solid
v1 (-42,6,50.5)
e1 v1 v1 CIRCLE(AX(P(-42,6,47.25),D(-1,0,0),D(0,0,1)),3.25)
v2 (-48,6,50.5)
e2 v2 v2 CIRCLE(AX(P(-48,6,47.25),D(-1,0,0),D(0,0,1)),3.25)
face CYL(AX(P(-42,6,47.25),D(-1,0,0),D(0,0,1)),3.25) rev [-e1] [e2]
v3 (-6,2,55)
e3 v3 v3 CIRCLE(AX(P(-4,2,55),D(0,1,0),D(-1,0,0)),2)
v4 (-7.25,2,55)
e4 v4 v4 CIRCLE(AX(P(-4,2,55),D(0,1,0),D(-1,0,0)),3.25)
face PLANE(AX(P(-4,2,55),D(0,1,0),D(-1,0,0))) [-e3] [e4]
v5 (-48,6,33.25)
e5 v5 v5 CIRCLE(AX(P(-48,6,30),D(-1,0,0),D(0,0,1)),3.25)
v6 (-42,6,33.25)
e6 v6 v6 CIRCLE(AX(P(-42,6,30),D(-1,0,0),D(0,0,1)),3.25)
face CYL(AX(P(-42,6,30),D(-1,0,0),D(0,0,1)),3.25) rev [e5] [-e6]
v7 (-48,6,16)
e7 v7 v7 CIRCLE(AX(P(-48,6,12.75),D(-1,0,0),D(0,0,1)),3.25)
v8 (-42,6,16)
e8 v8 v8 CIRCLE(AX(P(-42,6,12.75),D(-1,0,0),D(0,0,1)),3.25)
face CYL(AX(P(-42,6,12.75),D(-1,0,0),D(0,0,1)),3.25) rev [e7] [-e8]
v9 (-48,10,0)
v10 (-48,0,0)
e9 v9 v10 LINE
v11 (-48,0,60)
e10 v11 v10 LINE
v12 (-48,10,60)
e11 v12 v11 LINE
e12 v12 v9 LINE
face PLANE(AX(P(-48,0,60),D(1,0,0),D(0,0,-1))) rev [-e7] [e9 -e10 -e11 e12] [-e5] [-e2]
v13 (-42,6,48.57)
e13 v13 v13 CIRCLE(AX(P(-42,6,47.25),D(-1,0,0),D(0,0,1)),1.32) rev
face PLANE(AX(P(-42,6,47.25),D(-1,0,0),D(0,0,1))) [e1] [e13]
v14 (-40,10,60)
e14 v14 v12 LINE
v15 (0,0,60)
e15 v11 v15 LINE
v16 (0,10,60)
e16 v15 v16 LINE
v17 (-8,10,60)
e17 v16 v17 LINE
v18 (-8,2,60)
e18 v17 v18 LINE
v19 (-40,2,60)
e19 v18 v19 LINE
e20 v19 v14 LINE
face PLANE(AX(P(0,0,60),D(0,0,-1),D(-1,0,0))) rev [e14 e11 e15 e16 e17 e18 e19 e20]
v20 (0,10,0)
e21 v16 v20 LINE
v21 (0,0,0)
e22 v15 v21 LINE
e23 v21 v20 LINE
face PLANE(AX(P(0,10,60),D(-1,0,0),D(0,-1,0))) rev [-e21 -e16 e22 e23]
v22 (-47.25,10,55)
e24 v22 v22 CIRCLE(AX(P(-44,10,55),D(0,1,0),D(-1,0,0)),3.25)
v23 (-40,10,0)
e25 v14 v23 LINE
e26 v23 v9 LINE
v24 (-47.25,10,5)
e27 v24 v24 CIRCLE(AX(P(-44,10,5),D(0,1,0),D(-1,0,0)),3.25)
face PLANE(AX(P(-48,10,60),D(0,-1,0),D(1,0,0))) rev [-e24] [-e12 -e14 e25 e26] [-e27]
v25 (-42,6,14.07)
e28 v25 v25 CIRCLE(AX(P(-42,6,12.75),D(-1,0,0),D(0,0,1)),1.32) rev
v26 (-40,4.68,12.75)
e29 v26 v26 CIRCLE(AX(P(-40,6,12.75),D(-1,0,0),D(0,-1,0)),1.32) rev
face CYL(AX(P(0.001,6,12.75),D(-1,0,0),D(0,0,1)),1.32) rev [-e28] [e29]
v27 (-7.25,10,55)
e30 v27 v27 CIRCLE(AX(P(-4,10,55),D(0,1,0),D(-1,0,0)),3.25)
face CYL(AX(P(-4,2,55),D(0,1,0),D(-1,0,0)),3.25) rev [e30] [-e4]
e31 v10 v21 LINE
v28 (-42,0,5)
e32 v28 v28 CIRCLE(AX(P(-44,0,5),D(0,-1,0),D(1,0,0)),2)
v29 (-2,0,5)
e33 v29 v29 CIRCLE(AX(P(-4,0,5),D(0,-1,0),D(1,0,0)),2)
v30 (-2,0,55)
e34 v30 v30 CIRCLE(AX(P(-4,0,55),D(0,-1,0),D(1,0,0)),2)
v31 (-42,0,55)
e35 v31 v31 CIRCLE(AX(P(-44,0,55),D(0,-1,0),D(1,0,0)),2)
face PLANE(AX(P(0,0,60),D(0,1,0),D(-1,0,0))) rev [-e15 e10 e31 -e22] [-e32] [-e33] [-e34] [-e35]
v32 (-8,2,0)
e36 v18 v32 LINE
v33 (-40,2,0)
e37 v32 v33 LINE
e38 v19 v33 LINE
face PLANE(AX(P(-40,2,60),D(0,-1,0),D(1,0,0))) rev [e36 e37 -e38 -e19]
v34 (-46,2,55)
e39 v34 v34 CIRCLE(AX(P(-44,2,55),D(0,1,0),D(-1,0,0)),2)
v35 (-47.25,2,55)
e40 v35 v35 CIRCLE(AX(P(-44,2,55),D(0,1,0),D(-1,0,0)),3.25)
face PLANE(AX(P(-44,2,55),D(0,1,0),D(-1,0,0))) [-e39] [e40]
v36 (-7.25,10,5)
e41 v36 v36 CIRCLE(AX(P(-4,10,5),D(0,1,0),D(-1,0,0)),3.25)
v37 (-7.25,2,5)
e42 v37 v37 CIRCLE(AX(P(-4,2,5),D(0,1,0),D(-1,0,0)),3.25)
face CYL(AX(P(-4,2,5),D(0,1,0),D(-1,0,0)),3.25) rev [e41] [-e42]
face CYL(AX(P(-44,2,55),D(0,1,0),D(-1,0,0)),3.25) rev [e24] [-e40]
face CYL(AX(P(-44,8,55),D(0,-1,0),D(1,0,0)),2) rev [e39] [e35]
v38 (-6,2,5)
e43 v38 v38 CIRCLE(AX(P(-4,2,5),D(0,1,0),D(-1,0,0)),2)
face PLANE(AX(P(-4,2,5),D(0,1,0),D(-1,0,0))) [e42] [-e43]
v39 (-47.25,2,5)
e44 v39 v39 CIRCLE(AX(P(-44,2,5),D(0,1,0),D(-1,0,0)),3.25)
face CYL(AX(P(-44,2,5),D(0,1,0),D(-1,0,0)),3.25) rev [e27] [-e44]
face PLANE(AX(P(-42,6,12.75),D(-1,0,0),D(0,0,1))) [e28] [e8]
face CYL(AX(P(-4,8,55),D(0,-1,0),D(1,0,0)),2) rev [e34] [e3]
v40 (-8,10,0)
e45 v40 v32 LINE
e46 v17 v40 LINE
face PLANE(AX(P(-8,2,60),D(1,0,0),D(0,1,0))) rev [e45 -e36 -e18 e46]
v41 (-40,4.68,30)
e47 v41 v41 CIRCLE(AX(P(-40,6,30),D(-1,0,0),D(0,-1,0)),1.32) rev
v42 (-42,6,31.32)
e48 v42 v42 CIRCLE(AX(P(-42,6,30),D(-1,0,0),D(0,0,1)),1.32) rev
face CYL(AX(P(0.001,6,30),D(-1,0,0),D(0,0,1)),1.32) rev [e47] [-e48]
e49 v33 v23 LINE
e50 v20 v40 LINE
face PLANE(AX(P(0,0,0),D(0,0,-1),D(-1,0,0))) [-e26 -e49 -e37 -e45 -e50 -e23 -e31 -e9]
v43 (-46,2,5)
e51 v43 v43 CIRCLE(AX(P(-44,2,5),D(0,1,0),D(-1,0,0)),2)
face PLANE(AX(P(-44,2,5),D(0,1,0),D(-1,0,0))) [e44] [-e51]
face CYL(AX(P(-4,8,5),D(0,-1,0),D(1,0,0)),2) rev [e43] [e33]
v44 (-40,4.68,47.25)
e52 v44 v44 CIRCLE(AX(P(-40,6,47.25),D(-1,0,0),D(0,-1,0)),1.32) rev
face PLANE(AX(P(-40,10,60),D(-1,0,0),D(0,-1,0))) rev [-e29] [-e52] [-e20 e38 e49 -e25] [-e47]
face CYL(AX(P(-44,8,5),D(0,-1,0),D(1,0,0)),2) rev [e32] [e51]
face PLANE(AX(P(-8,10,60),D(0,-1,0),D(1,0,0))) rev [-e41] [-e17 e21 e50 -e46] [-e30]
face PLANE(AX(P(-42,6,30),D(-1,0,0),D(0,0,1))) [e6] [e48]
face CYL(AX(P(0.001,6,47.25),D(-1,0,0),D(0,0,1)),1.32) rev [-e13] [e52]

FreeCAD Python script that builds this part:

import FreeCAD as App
import Part
import Sketcher

V = App.Vector

doc = App.newDocument("Part")
body = doc.addObject("PartDesign::Body", "Body")

# Sketch on XY plane
sketch1 = body.newObject("Sketcher::SketchObject", "Sketch")
sketch1.AttachmentSupport = (doc.getObject("XY_Plane"), [""])
sketch1.MapMode = "FlatFace"
sketch1.addGeometry(Part.LineSegment(V(-48, 10, 0), V(-48, 0, 0)), False)
sketch1.addGeometry(Part.LineSegment(V(-48, 0, 0), V(0, 0, 0)), False)
sketch1.addGeometry(Part.LineSegment(V(0, 0, 0), V(0, 10, 0)), False)
sketch1.addGeometry(Part.LineSegment(V(0, 10, 0), V(-8, 10, 0)), False)
sketch1.addGeometry(Part.LineSegment(V(-8, 10, 0), V(-8, 2, 0)), False)
sketch1.addGeometry(Part.LineSegment(V(-8, 2, 0), V(-40, 2, 0)), False)
sketch1.addGeometry(Part.LineSegment(V(-40, 2, 0), V(-40, 10, 0)), False)
sketch1.addGeometry(Part.LineSegment(V(-40, 10, 0), V(-48, 10, 0)), False)
sketch1.addConstraint(Sketcher.Constraint("Coincident", 0, 2, 1, 1))
sketch1.addConstraint(Sketcher.Constraint("Coincident", 1, 2, 2, 1))
sketch1.addConstraint(Sketcher.Constraint("Coincident", 2, 2, 3, 1))
sketch1.addConstraint(Sketcher.Constraint("Coincident", 3, 2, 4, 1))
sketch1.addConstraint(Sketcher.Constraint("Coincident", 4, 2, 5, 1))
sketch1.addConstraint(Sketcher.Constraint("Coincident", 5, 2, 6, 1))
sketch1.addConstraint(Sketcher.Constraint("Coincident", 6, 2, 7, 1))
sketch1.addConstraint(Sketcher.Constraint("Coincident", 7, 2, 0, 1))
sketch1.addConstraint(Sketcher.Constraint("Vertical", 0))
sketch1.addConstraint(Sketcher.Constraint("Horizontal", 1))
sketch1.addConstraint(Sketcher.Constraint("Vertical", 2))
sketch1.addConstraint(Sketcher.Constraint("Horizontal", 3))
sketch1.addConstraint(Sketcher.Constraint("Vertical", 4))
sketch1.addConstraint(Sketcher.Constraint("Horizontal", 5))
sketch1.addConstraint(Sketcher.Constraint("Vertical", 6))
sketch1.addConstraint(Sketcher.Constraint("Horizontal", 7))
sketch1.addConstraint(Sketcher.Constraint("Coincident", 1, 2, -1, 1))
sketch1.addConstraint(Sketcher.Constraint("Horizontal", 3, 2, 6, 2))
sketch1.addConstraint(Sketcher.Constraint("Equal", 3, 7))
sketch1.addConstraint(Sketcher.Constraint("Equal", 7, 4))
sketch1.addConstraint(Sketcher.Constraint("DistanceX", 1, 1, 1, 2, 48.0))
sketch1.addConstraint(Sketcher.Constraint("DistanceX", 3, 2, 3, 1, 8.0))
sketch1.addConstraint(Sketcher.Constraint("DistanceY", 0, 2, 0, 1, 10.0))
pad1 = body.newObject("PartDesign::Pad", "Pad")
pad1.Profile = sketch1
pad1.Length = 60

# Sketch on XZ plane
sketch2 = body.newObject("Sketcher::SketchObject", "Sketch001")
sketch2.AttachmentSupport = (doc.getObject("XZ_Plane"), [""])
sketch2.MapMode = "FlatFace"
sketch2.AttachmentOffset = App.Placement(V(0, 0, -10), App.Rotation())
sketch2.addGeometry(Part.Circle(V(-44, 5, 0), V(0, 0, 1), 3.2), False)
sketch2.addGeometry(Part.Circle(V(-4, 5, 0), V(0, 0, 1), 3.2), False)
sketch2.addGeometry(Part.Circle(V(-4, 55, 0), V(0, 0, 1), 3.2), False)
sketch2.addGeometry(Part.Circle(V(-44, 55, 0), V(0, 0, 1), 3.2), False)
sketch2.addConstraint(Sketcher.Constraint("Equal", 0, 1))
sketch2.addConstraint(Sketcher.Constraint("Equal", 1, 2))
sketch2.addConstraint(Sketcher.Constraint("Equal", 2, 3))
sketch2.addConstraint(Sketcher.Constraint("Horizontal", 0, 3, 1, 3))
sketch2.addConstraint(Sketcher.Constraint("Horizontal", 2, 3, 3, 3))
sketch2.addConstraint(Sketcher.Constraint("Vertical", 1, 3, 2, 3))
sketch2.addConstraint(Sketcher.Constraint("Vertical", 0, 3, 3, 3))
sketch2.addConstraint(Sketcher.Constraint("Diameter", 0, 6.5))
sketch2.addConstraint(Sketcher.Constraint("DistanceX", 0, 3, -1, 1, 44.0))
sketch2.addConstraint(Sketcher.Constraint("DistanceY", -1, 1, 0, 3, 5.0))
sketch2.addConstraint(Sketcher.Constraint("DistanceX", 1, 3, -1, 1, 4.0))
sketch2.addConstraint(Sketcher.Constraint("DistanceY", -1, 1, 2, 3, 55.0))
pocket1 = body.newObject("PartDesign::Pocket", "Pocket")
pocket1.Profile = sketch2
pocket1.Length = 8
pocket1.Reversed = True

# Sketch on XZ plane
sketch3 = body.newObject("Sketcher::SketchObject", "Sketch002")
sketch3.AttachmentSupport = (doc.getObject("XZ_Plane"), [""])
sketch3.MapMode = "FlatFace"
sketch3.addGeometry(Part.Circle(V(-44, 55, 0), V(0, 0, 1), 2), False)
sketch3.addGeometry(Part.Circle(V(-4, 55, 0), V(0, 0, 1), 2), False)
sketch3.addGeometry(Part.Circle(V(-4, 5, 0), V(0, 0, 1), 2), False)
sketch3.addGeometry(Part.Circle(V(-44, 5, 0), V(0, 0, 1), 2), False)
sketch3.addConstraint(Sketcher.Constraint("Equal", 0, 1))
sketch3.addConstraint(Sketcher.Constraint("Equal", 1, 2))
sketch3.addConstraint(Sketcher.Constraint("Equal", 2, 3))
sketch3.addConstraint(Sketcher.Constraint("Horizontal", 0, 3, 1, 3))
sketch3.addConstraint(Sketcher.Constraint("Horizontal", 2, 3, 3, 3))
sketch3.addConstraint(Sketcher.Constraint("Vertical", 1, 3, 2, 3))
sketch3.addConstraint(Sketcher.Constraint("Vertical", 0, 3, 3, 3))
sketch3.addConstraint(Sketcher.Constraint("Diameter", 0, 4.0))
sketch3.addConstraint(Sketcher.Constraint("DistanceX", 0, 3, -1, 1, 44.0))
sketch3.addConstraint(Sketcher.Constraint("DistanceY", -1, 1, 0, 3, 55.0))
sketch3.addConstraint(Sketcher.Constraint("DistanceX", 1, 3, -1, 1, 4.0))
sketch3.addConstraint(Sketcher.Constraint("DistanceY", -1, 1, 2, 3, 5.0))
pocket2 = body.newObject("PartDesign::Pocket", "Pocket001")
pocket2.Profile = sketch3
pocket2.Length = 8

# Sketch on YZ plane
sketch4 = body.newObject("Sketcher::SketchObject", "Sketch003")
sketch4.AttachmentSupport = (doc.getObject("YZ_Plane"), [""])
sketch4.MapMode = "FlatFace"
sketch4.AttachmentOffset = App.Placement(V(0, 0, -48), App.Rotation())
sketch4.addGeometry(Part.Circle(V(6, 12.8, 0), V(0, 0, 1), 1.3), False)
sketch4.addConstraint(Sketcher.Constraint("Diameter", 0, 2.64))
sketch4.addConstraint(Sketcher.Constraint("DistanceX", -1, 1, 0, 3, 6.0))
sketch4.addConstraint(Sketcher.Constraint("DistanceY", -1, 1, 0, 3, 12.75))
pocket3 = body.newObject("PartDesign::Pocket", "Pocket002")
pocket3.Profile = sketch4
pocket3.Type = "UpToFirst"
pocket3.Reversed = True

# Sketch on YZ plane
sketch5 = body.newObject("Sketcher::SketchObject", "Sketch004")
sketch5.AttachmentSupport = (doc.getObject("YZ_Plane"), [""])
sketch5.MapMode = "FlatFace"
sketch5.AttachmentOffset = App.Placement(V(0, 0, -48), App.Rotation())
sketch5.addGeometry(Part.Circle(V(6, 30, 0), V(0, 0, 1), 1.3), False)
sketch5.addConstraint(Sketcher.Constraint("Diameter", 0, 2.64))
sketch5.addConstraint(Sketcher.Constraint("DistanceX", -1, 1, 0, 3, 6.0))
sketch5.addConstraint(Sketcher.Constraint("DistanceY", -1, 1, 0, 3, 30.0))
pocket4 = body.newObject("PartDesign::Pocket", "Pocket003")
pocket4.Profile = sketch5
pocket4.Type = "UpToFirst"
pocket4.Reversed = True

# Sketch on YZ plane
sketch6 = body.newObject("Sketcher::SketchObject", "Sketch005")
sketch6.AttachmentSupport = (doc.getObject("YZ_Plane"), [""])
sketch6.MapMode = "FlatFace"
sketch6.AttachmentOffset = App.Placement(V(0, 0, -48), App.Rotation())
sketch6.addGeometry(Part.Circle(V(6, 47.2, 0), V(0, 0, 1), 1.3), False)
sketch6.addConstraint(Sketcher.Constraint("Diameter", 0, 2.64))
sketch6.addConstraint(Sketcher.Constraint("DistanceX", -1, 1, 0, 3, 6.0))
sketch6.addConstraint(Sketcher.Constraint("DistanceY", -1, 1, 0, 3, 47.25))
pocket5 = body.newObject("PartDesign::Pocket", "Pocket004")
pocket5.Profile = sketch6
pocket5.Type = "UpToFirst"
pocket5.Reversed = True

# Sketch on YZ plane
sketch7 = body.newObject("Sketcher::SketchObject", "Sketch006")
sketch7.AttachmentSupport = (doc.getObject("YZ_Plane"), [""])
sketch7.MapMode = "FlatFace"
sketch7.AttachmentOffset = App.Placement(V(0, 0, -48), App.Rotation())
sketch7.addGeometry(Part.Circle(V(6, 12.8, 0), V(0, 0, 1), 3.2), False)
sketch7.addGeometry(Part.Circle(V(6, 30, 0), V(0, 0, 1), 3.2), False)
sketch7.addGeometry(Part.Circle(V(6, 47.2, 0), V(0, 0, 1), 3.2), False)
sketch7.addConstraint(Sketcher.Constraint("Equal", 0, 1))
sketch7.addConstraint(Sketcher.Constraint("Equal", 1, 2))
sketch7.addConstraint(Sketcher.Constraint("Vertical", 0, 3, 1, 3))
sketch7.addConstraint(Sketcher.Constraint("Vertical", 1, 3, 2, 3))
sketch7.addConstraint(Sketcher.Constraint("Diameter", 0, 6.5))
sketch7.addConstraint(Sketcher.Constraint("DistanceX", -1, 1, 0, 3, 6.0))
sketch7.addConstraint(Sketcher.Constraint("DistanceY", -1, 1, 1, 3, 30.0))
sketch7.addConstraint(Sketcher.Constraint("DistanceY", 0, 3, 2, 3, 34.5))
sketch7.addConstraint(Sketcher.Constraint("DistanceY", -1, 1, 0, 3, 12.75))
pocket6 = body.newObject("PartDesign::Pocket", "Pocket005")
pocket6.Profile = sketch7
pocket6.Length = 6
pocket6.Reversed = True

doc.recompute()
